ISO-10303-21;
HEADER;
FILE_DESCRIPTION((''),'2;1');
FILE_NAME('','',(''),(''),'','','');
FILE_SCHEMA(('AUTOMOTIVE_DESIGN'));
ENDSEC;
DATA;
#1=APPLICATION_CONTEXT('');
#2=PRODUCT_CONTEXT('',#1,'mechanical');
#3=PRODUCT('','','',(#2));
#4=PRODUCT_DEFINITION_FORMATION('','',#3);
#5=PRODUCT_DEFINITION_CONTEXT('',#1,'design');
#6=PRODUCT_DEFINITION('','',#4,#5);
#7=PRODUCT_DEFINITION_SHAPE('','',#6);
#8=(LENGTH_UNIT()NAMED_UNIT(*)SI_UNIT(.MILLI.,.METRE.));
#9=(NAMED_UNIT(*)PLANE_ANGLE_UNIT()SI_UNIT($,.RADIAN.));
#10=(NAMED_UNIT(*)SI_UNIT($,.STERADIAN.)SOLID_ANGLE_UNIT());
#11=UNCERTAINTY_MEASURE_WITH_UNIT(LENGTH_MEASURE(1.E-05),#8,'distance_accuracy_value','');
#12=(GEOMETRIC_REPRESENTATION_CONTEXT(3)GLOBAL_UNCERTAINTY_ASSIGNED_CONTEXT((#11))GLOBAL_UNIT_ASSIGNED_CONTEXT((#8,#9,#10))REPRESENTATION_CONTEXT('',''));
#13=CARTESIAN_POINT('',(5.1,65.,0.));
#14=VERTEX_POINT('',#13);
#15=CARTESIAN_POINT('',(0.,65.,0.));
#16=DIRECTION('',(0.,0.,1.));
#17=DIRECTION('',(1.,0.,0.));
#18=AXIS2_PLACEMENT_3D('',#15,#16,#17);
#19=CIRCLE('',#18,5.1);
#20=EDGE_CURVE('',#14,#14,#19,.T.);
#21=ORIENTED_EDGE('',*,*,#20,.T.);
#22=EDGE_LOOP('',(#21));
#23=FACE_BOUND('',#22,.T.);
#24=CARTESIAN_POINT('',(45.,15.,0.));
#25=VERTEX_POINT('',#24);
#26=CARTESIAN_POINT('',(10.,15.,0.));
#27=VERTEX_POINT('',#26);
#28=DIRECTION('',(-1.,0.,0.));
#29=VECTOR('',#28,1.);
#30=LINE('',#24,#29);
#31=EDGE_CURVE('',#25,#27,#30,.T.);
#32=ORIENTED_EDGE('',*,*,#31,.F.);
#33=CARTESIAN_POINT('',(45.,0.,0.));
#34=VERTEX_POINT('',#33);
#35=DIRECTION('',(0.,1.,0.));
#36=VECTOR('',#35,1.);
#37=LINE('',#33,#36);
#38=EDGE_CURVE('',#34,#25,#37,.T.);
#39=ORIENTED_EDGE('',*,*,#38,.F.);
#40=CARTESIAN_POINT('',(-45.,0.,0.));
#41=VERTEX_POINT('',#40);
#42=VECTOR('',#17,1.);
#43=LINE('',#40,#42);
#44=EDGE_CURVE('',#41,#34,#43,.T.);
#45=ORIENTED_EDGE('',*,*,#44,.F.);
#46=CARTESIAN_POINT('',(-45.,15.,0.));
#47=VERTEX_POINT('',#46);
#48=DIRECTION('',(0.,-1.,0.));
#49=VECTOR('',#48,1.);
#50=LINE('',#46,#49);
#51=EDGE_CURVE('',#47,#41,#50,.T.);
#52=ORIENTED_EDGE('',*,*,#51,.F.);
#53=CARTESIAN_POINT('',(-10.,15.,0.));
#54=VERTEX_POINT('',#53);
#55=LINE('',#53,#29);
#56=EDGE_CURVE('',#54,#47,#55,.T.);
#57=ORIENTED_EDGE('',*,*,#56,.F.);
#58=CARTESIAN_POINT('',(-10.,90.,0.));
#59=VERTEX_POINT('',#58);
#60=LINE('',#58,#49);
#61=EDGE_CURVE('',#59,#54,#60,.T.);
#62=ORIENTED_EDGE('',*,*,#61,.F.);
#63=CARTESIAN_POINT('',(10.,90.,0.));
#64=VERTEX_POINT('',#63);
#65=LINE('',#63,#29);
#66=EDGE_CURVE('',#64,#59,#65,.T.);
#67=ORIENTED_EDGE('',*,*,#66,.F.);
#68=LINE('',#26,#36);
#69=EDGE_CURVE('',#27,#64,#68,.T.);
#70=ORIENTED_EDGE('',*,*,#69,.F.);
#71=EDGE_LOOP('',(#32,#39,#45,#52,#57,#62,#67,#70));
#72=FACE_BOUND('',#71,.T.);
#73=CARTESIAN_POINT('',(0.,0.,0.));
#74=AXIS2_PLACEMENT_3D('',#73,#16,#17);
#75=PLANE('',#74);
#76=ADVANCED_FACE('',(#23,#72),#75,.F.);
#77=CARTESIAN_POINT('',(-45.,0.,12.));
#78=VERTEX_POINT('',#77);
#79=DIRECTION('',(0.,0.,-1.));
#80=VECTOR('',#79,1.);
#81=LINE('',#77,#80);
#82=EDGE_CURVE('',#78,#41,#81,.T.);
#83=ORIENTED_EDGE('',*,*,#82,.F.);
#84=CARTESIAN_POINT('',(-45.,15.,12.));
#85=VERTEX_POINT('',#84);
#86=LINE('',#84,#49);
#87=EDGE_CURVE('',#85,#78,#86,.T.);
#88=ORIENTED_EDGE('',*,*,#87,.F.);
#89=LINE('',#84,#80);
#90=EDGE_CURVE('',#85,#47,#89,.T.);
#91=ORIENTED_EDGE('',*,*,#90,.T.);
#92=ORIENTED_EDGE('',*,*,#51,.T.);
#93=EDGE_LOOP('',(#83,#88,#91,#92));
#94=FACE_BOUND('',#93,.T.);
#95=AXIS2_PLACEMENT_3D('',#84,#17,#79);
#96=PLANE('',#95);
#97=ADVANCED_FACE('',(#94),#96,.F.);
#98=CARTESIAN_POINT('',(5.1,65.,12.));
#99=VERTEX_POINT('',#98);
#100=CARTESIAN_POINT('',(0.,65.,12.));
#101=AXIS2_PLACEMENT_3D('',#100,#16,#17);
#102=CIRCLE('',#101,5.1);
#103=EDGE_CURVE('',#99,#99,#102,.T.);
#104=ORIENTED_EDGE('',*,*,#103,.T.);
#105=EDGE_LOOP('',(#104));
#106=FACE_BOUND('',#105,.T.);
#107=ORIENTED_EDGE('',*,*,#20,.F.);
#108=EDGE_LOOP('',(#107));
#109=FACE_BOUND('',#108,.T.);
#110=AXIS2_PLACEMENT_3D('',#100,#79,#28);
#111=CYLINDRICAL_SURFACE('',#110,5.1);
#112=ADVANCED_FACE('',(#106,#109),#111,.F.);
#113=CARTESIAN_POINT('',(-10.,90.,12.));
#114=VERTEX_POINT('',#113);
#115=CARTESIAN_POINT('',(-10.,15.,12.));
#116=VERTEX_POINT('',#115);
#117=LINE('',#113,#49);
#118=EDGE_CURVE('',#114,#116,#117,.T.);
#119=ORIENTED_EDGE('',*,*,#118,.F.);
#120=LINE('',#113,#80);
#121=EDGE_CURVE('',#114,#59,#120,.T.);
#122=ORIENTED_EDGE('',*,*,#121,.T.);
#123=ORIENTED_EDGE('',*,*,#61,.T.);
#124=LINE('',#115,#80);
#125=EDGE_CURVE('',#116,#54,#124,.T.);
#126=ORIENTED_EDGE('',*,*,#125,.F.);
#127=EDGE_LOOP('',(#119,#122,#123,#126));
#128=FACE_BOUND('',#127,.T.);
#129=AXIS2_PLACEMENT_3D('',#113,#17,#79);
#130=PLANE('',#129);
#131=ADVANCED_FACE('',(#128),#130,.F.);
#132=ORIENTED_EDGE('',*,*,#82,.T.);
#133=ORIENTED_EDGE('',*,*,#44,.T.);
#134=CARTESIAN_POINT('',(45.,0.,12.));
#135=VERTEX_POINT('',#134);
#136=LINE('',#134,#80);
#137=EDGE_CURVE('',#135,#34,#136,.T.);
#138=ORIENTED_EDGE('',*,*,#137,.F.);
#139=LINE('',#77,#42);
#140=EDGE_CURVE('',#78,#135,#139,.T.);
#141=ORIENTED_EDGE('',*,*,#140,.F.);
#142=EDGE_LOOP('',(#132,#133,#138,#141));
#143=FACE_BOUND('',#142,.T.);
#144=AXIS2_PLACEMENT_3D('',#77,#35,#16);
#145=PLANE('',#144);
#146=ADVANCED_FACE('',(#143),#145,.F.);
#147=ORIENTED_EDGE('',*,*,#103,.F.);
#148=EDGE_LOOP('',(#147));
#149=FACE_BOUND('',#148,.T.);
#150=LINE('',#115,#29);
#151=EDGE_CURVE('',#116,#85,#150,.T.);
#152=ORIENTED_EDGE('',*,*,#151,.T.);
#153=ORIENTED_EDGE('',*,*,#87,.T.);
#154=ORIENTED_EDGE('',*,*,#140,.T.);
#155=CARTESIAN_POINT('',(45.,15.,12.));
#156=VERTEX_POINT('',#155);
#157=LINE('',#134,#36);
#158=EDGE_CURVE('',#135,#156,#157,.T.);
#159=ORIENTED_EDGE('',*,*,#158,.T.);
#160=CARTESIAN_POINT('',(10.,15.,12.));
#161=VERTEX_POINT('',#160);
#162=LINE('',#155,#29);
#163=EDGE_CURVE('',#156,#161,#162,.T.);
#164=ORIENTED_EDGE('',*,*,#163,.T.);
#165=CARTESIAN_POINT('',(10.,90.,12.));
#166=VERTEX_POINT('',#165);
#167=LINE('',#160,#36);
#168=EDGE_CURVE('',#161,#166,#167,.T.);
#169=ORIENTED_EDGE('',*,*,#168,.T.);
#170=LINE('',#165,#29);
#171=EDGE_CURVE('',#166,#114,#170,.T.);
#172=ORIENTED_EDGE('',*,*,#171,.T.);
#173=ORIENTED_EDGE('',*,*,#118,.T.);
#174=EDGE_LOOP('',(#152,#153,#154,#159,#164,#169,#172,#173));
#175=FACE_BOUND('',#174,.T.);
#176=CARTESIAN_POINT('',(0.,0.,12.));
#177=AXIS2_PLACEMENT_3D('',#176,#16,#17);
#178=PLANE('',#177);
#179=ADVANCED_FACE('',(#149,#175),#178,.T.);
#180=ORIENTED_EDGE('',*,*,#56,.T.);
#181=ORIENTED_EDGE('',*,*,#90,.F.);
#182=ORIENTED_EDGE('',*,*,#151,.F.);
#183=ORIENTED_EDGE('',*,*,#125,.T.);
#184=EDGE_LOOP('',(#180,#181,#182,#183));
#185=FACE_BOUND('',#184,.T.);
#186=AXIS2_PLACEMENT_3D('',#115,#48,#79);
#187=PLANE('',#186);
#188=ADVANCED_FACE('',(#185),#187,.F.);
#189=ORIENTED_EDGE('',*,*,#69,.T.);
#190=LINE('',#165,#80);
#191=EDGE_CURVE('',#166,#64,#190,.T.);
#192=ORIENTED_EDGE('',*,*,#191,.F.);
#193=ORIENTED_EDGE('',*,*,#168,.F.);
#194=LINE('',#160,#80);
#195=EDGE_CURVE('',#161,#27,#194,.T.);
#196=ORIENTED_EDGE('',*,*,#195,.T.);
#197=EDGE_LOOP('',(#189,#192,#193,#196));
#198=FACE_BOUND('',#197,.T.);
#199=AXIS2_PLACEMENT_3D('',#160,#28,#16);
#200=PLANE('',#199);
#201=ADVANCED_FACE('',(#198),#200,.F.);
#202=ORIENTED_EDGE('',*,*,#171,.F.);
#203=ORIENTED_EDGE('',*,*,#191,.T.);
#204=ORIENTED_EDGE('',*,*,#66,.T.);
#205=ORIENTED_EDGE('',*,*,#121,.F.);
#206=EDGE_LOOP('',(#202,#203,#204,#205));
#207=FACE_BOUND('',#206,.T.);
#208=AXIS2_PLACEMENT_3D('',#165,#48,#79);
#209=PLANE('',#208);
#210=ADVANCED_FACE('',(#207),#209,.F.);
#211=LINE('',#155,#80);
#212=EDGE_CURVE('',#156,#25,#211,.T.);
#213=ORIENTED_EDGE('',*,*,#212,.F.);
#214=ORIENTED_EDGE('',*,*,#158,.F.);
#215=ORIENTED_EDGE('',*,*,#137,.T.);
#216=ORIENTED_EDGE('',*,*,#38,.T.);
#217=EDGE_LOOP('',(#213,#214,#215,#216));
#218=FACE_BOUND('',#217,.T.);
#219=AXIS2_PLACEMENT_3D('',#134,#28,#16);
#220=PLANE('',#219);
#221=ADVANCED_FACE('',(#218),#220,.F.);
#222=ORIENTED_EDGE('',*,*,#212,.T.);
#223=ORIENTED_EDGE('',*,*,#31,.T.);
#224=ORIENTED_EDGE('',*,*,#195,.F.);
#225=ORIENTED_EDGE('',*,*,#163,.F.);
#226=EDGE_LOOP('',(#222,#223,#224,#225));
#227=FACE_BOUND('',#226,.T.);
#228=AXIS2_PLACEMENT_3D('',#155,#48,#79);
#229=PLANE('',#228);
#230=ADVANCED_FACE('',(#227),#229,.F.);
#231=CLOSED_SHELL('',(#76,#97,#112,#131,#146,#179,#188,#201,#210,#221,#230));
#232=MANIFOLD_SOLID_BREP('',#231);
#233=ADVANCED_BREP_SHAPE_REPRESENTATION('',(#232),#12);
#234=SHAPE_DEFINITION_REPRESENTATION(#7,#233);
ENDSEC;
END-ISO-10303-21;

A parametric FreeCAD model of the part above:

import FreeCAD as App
import Part
import Sketcher
from FreeCAD import Vector
Q = App.Units.Quantity

doc = App.newDocument("Part")
body = doc.addObject("PartDesign::Body", "Body")

# Sketch on XY plane
sketch1 = body.newObject("Sketcher::SketchObject", "Sketch")
sketch1.AttachmentSupport = (doc.getObject("XY_Plane"), [""])
sketch1.MapMode = "FlatFace"
sketch1.addGeometry(Part.LineSegment(Vector(-45, 0, 0), Vector(45, 0, 0)), False)
sketch1.addGeometry(Part.LineSegment(Vector(45, 0, 0), Vector(45, 15, 0)), False)
sketch1.addGeometry(Part.LineSegment(Vector(45, 15, 0), Vector(10, 15, 0)), False)
sketch1.addGeometry(Part.LineSegment(Vector(10, 15, 0), Vector(10, 90, 0)), False)
sketch1.addGeometry(Part.LineSegment(Vector(10, 90, 0), Vector(-10, 90, 0)), False)
sketch1.addGeometry(Part.LineSegment(Vector(-10, 90, 0), Vector(-10, 15, 0)), False)
sketch1.addGeometry(Part.LineSegment(Vector(-10, 15, 0), Vector(-45, 15, 0)), False)
sketch1.addGeometry(Part.LineSegment(Vector(-45, 15, 0), Vector(-45, 0, 0)), False)
sketch1.addGeometry(Part.Circle(Vector(0, 65, 0), Vector(0, 0, 1), 5.1), False)
sketch1.addConstraint(Sketcher.Constraint("Coincident", 0, 2, 1, 1))
sketch1.addConstraint(Sketcher.Constraint("Coincident", 1, 2, 2, 1))
sketch1.addConstraint(Sketcher.Constraint("Coincident", 2, 2, 3, 1))
sketch1.addConstraint(Sketcher.Constraint("Coincident", 3, 2, 4, 1))
sketch1.addConstraint(Sketcher.Constraint("Coincident", 4, 2, 5, 1))
sketch1.addConstraint(Sketcher.Constraint("Coincident", 5, 2, 6, 1))
sketch1.addConstraint(Sketcher.Constraint("Coincident", 6, 2, 7, 1))
sketch1.addConstraint(Sketcher.Constraint("Coincident", 7, 2, 0, 1))
sketch1.addConstraint(Sketcher.Constraint("Horizontal", 0))
sketch1.addConstraint(Sketcher.Constraint("Vertical", 1))
sketch1.addConstraint(Sketcher.Constraint("Horizontal", 2))
sketch1.addConstraint(Sketcher.Constraint("Vertical", 3))
sketch1.addConstraint(Sketcher.Constraint("Horizontal", 4))
sketch1.addConstraint(Sketcher.Constraint("Vertical", 5))
sketch1.addConstraint(Sketcher.Constraint("Horizontal", 6))
sketch1.addConstraint(Sketcher.Constraint("Vertical", 7))
sketch1.addConstraint(Sketcher.Constraint("Symmetric", 0, 2, 7, 2, -1, 1))
sketch1.addConstraint(Sketcher.Constraint("Symmetric", 2, 2, 5, 2, -2))
sketch1.addConstraint(Sketcher.Constraint("PointOnObject", 8, 3, -2))
sketch1.addConstraint(Sketcher.Constraint("Diameter", 8, Q("10.2 mm")))
sketch1.addConstraint(Sketcher.Constraint("DistanceX", 0, 1, 0, 2, Q("90 mm")))
sketch1.addConstraint(Sketcher.Constraint("DistanceX", 2, 2, 2, 1, Q("35 mm")))
sketch1.addConstraint(Sketcher.Constraint("DistanceY", 1, 1, 1, 2, Q("15 mm")))
sketch1.addConstraint(Sketcher.Constraint("DistanceY", 3, 1, 3, 2, Q("75 mm")))
sketch1.addConstraint(Sketcher.Constraint("DistanceY", -1, 1, 8, 3, Q("65 mm")))
pad1 = body.newObject("PartDesign::Pad", "Pad")
pad1.Profile = sketch1
pad1.Length = 12

doc.recompute()
